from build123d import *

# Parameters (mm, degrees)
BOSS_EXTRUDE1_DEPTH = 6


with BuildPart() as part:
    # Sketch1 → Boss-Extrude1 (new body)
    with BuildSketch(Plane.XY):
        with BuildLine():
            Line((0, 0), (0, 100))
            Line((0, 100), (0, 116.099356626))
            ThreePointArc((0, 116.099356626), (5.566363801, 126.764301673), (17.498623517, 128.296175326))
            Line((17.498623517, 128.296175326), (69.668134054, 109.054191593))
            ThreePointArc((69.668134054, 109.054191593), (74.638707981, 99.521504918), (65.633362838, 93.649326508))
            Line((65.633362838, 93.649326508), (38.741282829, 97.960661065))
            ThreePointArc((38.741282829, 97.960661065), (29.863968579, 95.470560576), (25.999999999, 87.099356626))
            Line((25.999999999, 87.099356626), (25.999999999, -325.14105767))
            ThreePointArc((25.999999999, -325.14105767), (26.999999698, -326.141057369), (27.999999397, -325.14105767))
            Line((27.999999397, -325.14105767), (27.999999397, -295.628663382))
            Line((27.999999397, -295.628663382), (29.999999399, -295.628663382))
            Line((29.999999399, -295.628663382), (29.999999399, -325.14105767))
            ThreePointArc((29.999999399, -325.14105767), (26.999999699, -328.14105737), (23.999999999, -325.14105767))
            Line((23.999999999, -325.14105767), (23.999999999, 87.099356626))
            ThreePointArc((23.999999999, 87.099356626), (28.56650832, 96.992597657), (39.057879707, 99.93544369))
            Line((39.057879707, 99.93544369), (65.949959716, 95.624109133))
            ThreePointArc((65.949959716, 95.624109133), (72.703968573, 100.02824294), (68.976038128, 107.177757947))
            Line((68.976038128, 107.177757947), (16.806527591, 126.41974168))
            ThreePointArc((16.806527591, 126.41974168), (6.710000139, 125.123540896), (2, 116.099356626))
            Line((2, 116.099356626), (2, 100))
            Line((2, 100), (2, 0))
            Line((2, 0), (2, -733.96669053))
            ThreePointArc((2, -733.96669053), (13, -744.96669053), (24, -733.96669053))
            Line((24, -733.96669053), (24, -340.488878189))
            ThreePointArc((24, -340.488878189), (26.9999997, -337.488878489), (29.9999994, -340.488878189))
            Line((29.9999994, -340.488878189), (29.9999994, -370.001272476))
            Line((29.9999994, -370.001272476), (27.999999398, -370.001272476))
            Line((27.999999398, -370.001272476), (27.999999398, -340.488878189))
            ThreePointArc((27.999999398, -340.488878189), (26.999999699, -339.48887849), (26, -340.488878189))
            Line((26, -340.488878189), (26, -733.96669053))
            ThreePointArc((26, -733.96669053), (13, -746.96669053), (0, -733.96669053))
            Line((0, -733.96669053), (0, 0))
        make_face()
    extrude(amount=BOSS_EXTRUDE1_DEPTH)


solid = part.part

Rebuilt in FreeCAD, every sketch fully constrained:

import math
import FreeCAD as App
import Part
import Sketcher

V = App.Vector

doc = App.newDocument("Part")
body = doc.addObject("PartDesign::Body", "Body")

sketch1 = doc.addObject("Sketcher::SketchObject", "Sketch")
body.addObject(sketch1)
sketch1.AttachmentSupport = (doc.XY_Plane, [""])
sketch1.MapMode = "FlatFace"
sketch1.addGeometry([
    Part.ArcOfCircle(Part.Circle(V(13, 116.099357, 0), V(0, 0, 1), 13), math.radians(69.75422), math.radians(180)),
    Part.LineSegment(V(0, 116.099357, 0), V(0, -733.966691, 0)),
    Part.ArcOfCircle(Part.Circle(V(13, -733.966691, 0), V(0, 0, 1), 13), math.radians(180), math.radians(360)),
    Part.LineSegment(V(26, -733.966691, 0), V(26, -340.488878, 0)),
    Part.ArcOfCircle(Part.Circle(V(27, -340.488878, 0), V(0, 0, 1), 1), math.radians(0), math.radians(180)),
    Part.LineSegment(V(27.999999, -340.488878, 0), V(27.999999, -370.001272, 0)),
    Part.LineSegment(V(27.999999, -370.001272, 0), V(29.999999, -370.001272, 0)),
    Part.LineSegment(V(29.999999, -370.001272, 0), V(29.999999, -340.488878, 0)),
    Part.ArcOfCircle(Part.Circle(V(27, -340.488878, 0), V(0, 0, 1), 3), math.radians(0), math.radians(180)),
    Part.LineSegment(V(24, -340.488878, 0), V(24, -733.966691, 0)),
    Part.ArcOfCircle(Part.Circle(V(13, -733.966691, 0), V(0, 0, 1), 11), math.radians(180), math.radians(360)),
    Part.LineSegment(V(2, -733.966691, 0), V(2, 116.099357, 0)),
    Part.ArcOfCircle(Part.Circle(V(13, 116.099357, 0), V(0, 0, 1), 11), math.radians(69.75422), math.radians(180)),
    Part.LineSegment(V(16.806528, 126.419742, 0), V(68.976038, 107.177758, 0)),
    Part.ArcOfCircle(Part.Circle(V(66.89975, 101.548457, 0), V(0, 0, 1), 6), math.radians(-99.108145), math.radians(69.75422)),
    Part.LineSegment(V(65.94996, 95.624109, 0), V(39.05788, 99.935444, 0)),
    Part.ArcOfCircle(Part.Circle(V(37, 87.099357, 0), V(0, 0, 1), 13), math.radians(80.891855), math.radians(180)),
    Part.LineSegment(V(24, 87.099357, 0), V(24, -325.141058, 0)),
    Part.ArcOfCircle(Part.Circle(V(27, -325.141058, 0), V(0, 0, 1), 3), math.radians(180), math.radians(360)),
    Part.LineSegment(V(29.999999, -325.141058, 0), V(29.999999, -295.628663, 0)),
    Part.LineSegment(V(29.999999, -295.628663, 0), V(27.999999, -295.628663, 0)),
    Part.LineSegment(V(27.999999, -295.628663, 0), V(27.999999, -325.141058, 0)),
    Part.ArcOfCircle(Part.Circle(V(27, -325.141058, 0), V(0, 0, 1), 1), math.radians(180), math.radians(360)),
    Part.LineSegment(V(26, -325.141058, 0), V(26, 87.099357, 0)),
    Part.ArcOfCircle(Part.Circle(V(37, 87.099357, 0), V(0, 0, 1), 11), math.radians(80.891855), math.radians(180)),
    Part.LineSegment(V(38.741283, 97.960661, 0), V(65.633363, 93.649327, 0)),
    Part.ArcOfCircle(Part.Circle(V(66.89975, 101.548457, 0), V(0, 0, 1), 8), math.radians(-99.108145), math.radians(69.75422)),
    Part.LineSegment(V(69.668134, 109.054192, 0), V(17.498624, 128.296175, 0)),
], False)
sketch1.addConstraint([
    Sketcher.Constraint("Tangent", 0, 2, 1, 1),
    Sketcher.Constraint("Tangent", 1, 2, 2, 1),
    Sketcher.Constraint("Tangent", 2, 2, 3, 1),
    Sketcher.Constraint("Tangent", 3, 2, 4, 2),
    Sketcher.Constraint("Tangent", 4, 1, 5, 1),
    Sketcher.Constraint("Coincident", 5, 2, 6, 1),
    Sketcher.Constraint("Coincident", 6, 2, 7, 1),
    Sketcher.Constraint("Tangent", 7, 2, 8, 1),
    Sketcher.Constraint("Tangent", 8, 2, 9, 1),
    Sketcher.Constraint("Tangent", 9, 2, 10, 2),
    Sketcher.Constraint("Tangent", 10, 1, 11, 1),
    Sketcher.Constraint("Tangent", 11, 2, 12, 2),
    Sketcher.Constraint("Tangent", 12, 1, 13, 1),
    Sketcher.Constraint("Tangent", 13, 2, 14, 2),
    Sketcher.Constraint("Tangent", 14, 1, 15, 1),
    Sketcher.Constraint("Tangent", 15, 2, 16, 1),
    Sketcher.Constraint("Tangent", 16, 2, 17, 1),
    Sketcher.Constraint("Tangent", 17, 2, 18, 1),
    Sketcher.Constraint("Tangent", 18, 2, 19, 1),
    Sketcher.Constraint("Coincident", 19, 2, 20, 1),
    Sketcher.Constraint("Coincident", 20, 2, 21, 1),
    Sketcher.Constraint("Tangent", 21, 2, 22, 2),
    Sketcher.Constraint("Tangent", 22, 1, 23, 1),
    Sketcher.Constraint("Tangent", 23, 2, 24, 2),
    Sketcher.Constraint("Tangent", 24, 1, 25, 1),
    Sketcher.Constraint("Tangent", 25, 2, 26, 1),
    Sketcher.Constraint("Tangent", 26, 2, 27, 1),
    Sketcher.Constraint("Tangent", 27, 2, 0, 1),
    Sketcher.Constraint("Vertical", 1),
    Sketcher.Constraint("Vertical", 3),
    Sketcher.Constraint("Vertical", 5),
    Sketcher.Constraint("Horizontal", 6),
    Sketcher.Constraint("Vertical", 7),
    Sketcher.Constraint("Vertical", 9),
    Sketcher.Constraint("Vertical", 11),
    Sketcher.Constraint("Vertical", 17),
    Sketcher.Constraint("Vertical", 19),
    Sketcher.Constraint("Horizontal", 20),
    Sketcher.Constraint("Vertical", 21),
    Sketcher.Constraint("Vertical", 23),
    Sketcher.Constraint("Coincident", 8, 3, 4, 3),
    Sketcher.Constraint("Coincident", 10, 3, 2, 3),
    Sketcher.Constraint("Coincident", 12, 3, 0, 3),
    Sketcher.Constraint("Coincident", 22, 3, 18, 3),
    Sketcher.Constraint("Coincident", 24, 3, 16, 3),
    Sketcher.Constraint("Coincident", 26, 3, 14, 3),
    Sketcher.Constraint("Equal", 0, 2),
    Sketcher.Constraint("Equal", 2, 16),
    Sketcher.Constraint("Equal", 8, 18),
    Sketcher.Constraint("Equal", 4, 22),
    Sketcher.Constraint("PointOnObject", 0, 2, -2),
    Sketcher.Constraint("Parallel", 15, 25),
    Sketcher.Constraint("Vertical", 8, 3, 18, 3),
    Sketcher.Constraint("Equal", 7, 19),
    Sketcher.Constraint("Radius", 0, 13.0),
    Sketcher.Constraint("Radius", 4, 1.0),
    Sketcher.Constraint("Radius", 8, 3.0),
    Sketcher.Constraint("Radius", 14, 6.0),
    Sketcher.Constraint("DistanceY", 16, 3, 12, 3, 29.0),
    Sketcher.Constraint("DistanceY", 14, 3, 12, 3, 14.5509),
    Sketcher.Constraint("DistanceY", 14, 3, 13, 2, 5.629301),
    Sketcher.Constraint("DistanceY", 1, 2, 1, 1, 850.066047),
    Sketcher.Constraint("DistanceY", 3, 1, 3, 2, 393.477812),
    Sketcher.Constraint("DistanceY", 5, 2, 5, 1, 29.512394),
    Sketcher.Constraint("DistanceY", 17, 2, 17, 1, 412.240414),
    Sketcher.Constraint("DistanceY", 2, 3, -1, 1, 733.966691),
])
pad1 = doc.addObject("PartDesign::Pad", "Pad")
body.addObject(pad1)
pad1.Profile = sketch1
pad1.Length = 6

doc.recompute()
